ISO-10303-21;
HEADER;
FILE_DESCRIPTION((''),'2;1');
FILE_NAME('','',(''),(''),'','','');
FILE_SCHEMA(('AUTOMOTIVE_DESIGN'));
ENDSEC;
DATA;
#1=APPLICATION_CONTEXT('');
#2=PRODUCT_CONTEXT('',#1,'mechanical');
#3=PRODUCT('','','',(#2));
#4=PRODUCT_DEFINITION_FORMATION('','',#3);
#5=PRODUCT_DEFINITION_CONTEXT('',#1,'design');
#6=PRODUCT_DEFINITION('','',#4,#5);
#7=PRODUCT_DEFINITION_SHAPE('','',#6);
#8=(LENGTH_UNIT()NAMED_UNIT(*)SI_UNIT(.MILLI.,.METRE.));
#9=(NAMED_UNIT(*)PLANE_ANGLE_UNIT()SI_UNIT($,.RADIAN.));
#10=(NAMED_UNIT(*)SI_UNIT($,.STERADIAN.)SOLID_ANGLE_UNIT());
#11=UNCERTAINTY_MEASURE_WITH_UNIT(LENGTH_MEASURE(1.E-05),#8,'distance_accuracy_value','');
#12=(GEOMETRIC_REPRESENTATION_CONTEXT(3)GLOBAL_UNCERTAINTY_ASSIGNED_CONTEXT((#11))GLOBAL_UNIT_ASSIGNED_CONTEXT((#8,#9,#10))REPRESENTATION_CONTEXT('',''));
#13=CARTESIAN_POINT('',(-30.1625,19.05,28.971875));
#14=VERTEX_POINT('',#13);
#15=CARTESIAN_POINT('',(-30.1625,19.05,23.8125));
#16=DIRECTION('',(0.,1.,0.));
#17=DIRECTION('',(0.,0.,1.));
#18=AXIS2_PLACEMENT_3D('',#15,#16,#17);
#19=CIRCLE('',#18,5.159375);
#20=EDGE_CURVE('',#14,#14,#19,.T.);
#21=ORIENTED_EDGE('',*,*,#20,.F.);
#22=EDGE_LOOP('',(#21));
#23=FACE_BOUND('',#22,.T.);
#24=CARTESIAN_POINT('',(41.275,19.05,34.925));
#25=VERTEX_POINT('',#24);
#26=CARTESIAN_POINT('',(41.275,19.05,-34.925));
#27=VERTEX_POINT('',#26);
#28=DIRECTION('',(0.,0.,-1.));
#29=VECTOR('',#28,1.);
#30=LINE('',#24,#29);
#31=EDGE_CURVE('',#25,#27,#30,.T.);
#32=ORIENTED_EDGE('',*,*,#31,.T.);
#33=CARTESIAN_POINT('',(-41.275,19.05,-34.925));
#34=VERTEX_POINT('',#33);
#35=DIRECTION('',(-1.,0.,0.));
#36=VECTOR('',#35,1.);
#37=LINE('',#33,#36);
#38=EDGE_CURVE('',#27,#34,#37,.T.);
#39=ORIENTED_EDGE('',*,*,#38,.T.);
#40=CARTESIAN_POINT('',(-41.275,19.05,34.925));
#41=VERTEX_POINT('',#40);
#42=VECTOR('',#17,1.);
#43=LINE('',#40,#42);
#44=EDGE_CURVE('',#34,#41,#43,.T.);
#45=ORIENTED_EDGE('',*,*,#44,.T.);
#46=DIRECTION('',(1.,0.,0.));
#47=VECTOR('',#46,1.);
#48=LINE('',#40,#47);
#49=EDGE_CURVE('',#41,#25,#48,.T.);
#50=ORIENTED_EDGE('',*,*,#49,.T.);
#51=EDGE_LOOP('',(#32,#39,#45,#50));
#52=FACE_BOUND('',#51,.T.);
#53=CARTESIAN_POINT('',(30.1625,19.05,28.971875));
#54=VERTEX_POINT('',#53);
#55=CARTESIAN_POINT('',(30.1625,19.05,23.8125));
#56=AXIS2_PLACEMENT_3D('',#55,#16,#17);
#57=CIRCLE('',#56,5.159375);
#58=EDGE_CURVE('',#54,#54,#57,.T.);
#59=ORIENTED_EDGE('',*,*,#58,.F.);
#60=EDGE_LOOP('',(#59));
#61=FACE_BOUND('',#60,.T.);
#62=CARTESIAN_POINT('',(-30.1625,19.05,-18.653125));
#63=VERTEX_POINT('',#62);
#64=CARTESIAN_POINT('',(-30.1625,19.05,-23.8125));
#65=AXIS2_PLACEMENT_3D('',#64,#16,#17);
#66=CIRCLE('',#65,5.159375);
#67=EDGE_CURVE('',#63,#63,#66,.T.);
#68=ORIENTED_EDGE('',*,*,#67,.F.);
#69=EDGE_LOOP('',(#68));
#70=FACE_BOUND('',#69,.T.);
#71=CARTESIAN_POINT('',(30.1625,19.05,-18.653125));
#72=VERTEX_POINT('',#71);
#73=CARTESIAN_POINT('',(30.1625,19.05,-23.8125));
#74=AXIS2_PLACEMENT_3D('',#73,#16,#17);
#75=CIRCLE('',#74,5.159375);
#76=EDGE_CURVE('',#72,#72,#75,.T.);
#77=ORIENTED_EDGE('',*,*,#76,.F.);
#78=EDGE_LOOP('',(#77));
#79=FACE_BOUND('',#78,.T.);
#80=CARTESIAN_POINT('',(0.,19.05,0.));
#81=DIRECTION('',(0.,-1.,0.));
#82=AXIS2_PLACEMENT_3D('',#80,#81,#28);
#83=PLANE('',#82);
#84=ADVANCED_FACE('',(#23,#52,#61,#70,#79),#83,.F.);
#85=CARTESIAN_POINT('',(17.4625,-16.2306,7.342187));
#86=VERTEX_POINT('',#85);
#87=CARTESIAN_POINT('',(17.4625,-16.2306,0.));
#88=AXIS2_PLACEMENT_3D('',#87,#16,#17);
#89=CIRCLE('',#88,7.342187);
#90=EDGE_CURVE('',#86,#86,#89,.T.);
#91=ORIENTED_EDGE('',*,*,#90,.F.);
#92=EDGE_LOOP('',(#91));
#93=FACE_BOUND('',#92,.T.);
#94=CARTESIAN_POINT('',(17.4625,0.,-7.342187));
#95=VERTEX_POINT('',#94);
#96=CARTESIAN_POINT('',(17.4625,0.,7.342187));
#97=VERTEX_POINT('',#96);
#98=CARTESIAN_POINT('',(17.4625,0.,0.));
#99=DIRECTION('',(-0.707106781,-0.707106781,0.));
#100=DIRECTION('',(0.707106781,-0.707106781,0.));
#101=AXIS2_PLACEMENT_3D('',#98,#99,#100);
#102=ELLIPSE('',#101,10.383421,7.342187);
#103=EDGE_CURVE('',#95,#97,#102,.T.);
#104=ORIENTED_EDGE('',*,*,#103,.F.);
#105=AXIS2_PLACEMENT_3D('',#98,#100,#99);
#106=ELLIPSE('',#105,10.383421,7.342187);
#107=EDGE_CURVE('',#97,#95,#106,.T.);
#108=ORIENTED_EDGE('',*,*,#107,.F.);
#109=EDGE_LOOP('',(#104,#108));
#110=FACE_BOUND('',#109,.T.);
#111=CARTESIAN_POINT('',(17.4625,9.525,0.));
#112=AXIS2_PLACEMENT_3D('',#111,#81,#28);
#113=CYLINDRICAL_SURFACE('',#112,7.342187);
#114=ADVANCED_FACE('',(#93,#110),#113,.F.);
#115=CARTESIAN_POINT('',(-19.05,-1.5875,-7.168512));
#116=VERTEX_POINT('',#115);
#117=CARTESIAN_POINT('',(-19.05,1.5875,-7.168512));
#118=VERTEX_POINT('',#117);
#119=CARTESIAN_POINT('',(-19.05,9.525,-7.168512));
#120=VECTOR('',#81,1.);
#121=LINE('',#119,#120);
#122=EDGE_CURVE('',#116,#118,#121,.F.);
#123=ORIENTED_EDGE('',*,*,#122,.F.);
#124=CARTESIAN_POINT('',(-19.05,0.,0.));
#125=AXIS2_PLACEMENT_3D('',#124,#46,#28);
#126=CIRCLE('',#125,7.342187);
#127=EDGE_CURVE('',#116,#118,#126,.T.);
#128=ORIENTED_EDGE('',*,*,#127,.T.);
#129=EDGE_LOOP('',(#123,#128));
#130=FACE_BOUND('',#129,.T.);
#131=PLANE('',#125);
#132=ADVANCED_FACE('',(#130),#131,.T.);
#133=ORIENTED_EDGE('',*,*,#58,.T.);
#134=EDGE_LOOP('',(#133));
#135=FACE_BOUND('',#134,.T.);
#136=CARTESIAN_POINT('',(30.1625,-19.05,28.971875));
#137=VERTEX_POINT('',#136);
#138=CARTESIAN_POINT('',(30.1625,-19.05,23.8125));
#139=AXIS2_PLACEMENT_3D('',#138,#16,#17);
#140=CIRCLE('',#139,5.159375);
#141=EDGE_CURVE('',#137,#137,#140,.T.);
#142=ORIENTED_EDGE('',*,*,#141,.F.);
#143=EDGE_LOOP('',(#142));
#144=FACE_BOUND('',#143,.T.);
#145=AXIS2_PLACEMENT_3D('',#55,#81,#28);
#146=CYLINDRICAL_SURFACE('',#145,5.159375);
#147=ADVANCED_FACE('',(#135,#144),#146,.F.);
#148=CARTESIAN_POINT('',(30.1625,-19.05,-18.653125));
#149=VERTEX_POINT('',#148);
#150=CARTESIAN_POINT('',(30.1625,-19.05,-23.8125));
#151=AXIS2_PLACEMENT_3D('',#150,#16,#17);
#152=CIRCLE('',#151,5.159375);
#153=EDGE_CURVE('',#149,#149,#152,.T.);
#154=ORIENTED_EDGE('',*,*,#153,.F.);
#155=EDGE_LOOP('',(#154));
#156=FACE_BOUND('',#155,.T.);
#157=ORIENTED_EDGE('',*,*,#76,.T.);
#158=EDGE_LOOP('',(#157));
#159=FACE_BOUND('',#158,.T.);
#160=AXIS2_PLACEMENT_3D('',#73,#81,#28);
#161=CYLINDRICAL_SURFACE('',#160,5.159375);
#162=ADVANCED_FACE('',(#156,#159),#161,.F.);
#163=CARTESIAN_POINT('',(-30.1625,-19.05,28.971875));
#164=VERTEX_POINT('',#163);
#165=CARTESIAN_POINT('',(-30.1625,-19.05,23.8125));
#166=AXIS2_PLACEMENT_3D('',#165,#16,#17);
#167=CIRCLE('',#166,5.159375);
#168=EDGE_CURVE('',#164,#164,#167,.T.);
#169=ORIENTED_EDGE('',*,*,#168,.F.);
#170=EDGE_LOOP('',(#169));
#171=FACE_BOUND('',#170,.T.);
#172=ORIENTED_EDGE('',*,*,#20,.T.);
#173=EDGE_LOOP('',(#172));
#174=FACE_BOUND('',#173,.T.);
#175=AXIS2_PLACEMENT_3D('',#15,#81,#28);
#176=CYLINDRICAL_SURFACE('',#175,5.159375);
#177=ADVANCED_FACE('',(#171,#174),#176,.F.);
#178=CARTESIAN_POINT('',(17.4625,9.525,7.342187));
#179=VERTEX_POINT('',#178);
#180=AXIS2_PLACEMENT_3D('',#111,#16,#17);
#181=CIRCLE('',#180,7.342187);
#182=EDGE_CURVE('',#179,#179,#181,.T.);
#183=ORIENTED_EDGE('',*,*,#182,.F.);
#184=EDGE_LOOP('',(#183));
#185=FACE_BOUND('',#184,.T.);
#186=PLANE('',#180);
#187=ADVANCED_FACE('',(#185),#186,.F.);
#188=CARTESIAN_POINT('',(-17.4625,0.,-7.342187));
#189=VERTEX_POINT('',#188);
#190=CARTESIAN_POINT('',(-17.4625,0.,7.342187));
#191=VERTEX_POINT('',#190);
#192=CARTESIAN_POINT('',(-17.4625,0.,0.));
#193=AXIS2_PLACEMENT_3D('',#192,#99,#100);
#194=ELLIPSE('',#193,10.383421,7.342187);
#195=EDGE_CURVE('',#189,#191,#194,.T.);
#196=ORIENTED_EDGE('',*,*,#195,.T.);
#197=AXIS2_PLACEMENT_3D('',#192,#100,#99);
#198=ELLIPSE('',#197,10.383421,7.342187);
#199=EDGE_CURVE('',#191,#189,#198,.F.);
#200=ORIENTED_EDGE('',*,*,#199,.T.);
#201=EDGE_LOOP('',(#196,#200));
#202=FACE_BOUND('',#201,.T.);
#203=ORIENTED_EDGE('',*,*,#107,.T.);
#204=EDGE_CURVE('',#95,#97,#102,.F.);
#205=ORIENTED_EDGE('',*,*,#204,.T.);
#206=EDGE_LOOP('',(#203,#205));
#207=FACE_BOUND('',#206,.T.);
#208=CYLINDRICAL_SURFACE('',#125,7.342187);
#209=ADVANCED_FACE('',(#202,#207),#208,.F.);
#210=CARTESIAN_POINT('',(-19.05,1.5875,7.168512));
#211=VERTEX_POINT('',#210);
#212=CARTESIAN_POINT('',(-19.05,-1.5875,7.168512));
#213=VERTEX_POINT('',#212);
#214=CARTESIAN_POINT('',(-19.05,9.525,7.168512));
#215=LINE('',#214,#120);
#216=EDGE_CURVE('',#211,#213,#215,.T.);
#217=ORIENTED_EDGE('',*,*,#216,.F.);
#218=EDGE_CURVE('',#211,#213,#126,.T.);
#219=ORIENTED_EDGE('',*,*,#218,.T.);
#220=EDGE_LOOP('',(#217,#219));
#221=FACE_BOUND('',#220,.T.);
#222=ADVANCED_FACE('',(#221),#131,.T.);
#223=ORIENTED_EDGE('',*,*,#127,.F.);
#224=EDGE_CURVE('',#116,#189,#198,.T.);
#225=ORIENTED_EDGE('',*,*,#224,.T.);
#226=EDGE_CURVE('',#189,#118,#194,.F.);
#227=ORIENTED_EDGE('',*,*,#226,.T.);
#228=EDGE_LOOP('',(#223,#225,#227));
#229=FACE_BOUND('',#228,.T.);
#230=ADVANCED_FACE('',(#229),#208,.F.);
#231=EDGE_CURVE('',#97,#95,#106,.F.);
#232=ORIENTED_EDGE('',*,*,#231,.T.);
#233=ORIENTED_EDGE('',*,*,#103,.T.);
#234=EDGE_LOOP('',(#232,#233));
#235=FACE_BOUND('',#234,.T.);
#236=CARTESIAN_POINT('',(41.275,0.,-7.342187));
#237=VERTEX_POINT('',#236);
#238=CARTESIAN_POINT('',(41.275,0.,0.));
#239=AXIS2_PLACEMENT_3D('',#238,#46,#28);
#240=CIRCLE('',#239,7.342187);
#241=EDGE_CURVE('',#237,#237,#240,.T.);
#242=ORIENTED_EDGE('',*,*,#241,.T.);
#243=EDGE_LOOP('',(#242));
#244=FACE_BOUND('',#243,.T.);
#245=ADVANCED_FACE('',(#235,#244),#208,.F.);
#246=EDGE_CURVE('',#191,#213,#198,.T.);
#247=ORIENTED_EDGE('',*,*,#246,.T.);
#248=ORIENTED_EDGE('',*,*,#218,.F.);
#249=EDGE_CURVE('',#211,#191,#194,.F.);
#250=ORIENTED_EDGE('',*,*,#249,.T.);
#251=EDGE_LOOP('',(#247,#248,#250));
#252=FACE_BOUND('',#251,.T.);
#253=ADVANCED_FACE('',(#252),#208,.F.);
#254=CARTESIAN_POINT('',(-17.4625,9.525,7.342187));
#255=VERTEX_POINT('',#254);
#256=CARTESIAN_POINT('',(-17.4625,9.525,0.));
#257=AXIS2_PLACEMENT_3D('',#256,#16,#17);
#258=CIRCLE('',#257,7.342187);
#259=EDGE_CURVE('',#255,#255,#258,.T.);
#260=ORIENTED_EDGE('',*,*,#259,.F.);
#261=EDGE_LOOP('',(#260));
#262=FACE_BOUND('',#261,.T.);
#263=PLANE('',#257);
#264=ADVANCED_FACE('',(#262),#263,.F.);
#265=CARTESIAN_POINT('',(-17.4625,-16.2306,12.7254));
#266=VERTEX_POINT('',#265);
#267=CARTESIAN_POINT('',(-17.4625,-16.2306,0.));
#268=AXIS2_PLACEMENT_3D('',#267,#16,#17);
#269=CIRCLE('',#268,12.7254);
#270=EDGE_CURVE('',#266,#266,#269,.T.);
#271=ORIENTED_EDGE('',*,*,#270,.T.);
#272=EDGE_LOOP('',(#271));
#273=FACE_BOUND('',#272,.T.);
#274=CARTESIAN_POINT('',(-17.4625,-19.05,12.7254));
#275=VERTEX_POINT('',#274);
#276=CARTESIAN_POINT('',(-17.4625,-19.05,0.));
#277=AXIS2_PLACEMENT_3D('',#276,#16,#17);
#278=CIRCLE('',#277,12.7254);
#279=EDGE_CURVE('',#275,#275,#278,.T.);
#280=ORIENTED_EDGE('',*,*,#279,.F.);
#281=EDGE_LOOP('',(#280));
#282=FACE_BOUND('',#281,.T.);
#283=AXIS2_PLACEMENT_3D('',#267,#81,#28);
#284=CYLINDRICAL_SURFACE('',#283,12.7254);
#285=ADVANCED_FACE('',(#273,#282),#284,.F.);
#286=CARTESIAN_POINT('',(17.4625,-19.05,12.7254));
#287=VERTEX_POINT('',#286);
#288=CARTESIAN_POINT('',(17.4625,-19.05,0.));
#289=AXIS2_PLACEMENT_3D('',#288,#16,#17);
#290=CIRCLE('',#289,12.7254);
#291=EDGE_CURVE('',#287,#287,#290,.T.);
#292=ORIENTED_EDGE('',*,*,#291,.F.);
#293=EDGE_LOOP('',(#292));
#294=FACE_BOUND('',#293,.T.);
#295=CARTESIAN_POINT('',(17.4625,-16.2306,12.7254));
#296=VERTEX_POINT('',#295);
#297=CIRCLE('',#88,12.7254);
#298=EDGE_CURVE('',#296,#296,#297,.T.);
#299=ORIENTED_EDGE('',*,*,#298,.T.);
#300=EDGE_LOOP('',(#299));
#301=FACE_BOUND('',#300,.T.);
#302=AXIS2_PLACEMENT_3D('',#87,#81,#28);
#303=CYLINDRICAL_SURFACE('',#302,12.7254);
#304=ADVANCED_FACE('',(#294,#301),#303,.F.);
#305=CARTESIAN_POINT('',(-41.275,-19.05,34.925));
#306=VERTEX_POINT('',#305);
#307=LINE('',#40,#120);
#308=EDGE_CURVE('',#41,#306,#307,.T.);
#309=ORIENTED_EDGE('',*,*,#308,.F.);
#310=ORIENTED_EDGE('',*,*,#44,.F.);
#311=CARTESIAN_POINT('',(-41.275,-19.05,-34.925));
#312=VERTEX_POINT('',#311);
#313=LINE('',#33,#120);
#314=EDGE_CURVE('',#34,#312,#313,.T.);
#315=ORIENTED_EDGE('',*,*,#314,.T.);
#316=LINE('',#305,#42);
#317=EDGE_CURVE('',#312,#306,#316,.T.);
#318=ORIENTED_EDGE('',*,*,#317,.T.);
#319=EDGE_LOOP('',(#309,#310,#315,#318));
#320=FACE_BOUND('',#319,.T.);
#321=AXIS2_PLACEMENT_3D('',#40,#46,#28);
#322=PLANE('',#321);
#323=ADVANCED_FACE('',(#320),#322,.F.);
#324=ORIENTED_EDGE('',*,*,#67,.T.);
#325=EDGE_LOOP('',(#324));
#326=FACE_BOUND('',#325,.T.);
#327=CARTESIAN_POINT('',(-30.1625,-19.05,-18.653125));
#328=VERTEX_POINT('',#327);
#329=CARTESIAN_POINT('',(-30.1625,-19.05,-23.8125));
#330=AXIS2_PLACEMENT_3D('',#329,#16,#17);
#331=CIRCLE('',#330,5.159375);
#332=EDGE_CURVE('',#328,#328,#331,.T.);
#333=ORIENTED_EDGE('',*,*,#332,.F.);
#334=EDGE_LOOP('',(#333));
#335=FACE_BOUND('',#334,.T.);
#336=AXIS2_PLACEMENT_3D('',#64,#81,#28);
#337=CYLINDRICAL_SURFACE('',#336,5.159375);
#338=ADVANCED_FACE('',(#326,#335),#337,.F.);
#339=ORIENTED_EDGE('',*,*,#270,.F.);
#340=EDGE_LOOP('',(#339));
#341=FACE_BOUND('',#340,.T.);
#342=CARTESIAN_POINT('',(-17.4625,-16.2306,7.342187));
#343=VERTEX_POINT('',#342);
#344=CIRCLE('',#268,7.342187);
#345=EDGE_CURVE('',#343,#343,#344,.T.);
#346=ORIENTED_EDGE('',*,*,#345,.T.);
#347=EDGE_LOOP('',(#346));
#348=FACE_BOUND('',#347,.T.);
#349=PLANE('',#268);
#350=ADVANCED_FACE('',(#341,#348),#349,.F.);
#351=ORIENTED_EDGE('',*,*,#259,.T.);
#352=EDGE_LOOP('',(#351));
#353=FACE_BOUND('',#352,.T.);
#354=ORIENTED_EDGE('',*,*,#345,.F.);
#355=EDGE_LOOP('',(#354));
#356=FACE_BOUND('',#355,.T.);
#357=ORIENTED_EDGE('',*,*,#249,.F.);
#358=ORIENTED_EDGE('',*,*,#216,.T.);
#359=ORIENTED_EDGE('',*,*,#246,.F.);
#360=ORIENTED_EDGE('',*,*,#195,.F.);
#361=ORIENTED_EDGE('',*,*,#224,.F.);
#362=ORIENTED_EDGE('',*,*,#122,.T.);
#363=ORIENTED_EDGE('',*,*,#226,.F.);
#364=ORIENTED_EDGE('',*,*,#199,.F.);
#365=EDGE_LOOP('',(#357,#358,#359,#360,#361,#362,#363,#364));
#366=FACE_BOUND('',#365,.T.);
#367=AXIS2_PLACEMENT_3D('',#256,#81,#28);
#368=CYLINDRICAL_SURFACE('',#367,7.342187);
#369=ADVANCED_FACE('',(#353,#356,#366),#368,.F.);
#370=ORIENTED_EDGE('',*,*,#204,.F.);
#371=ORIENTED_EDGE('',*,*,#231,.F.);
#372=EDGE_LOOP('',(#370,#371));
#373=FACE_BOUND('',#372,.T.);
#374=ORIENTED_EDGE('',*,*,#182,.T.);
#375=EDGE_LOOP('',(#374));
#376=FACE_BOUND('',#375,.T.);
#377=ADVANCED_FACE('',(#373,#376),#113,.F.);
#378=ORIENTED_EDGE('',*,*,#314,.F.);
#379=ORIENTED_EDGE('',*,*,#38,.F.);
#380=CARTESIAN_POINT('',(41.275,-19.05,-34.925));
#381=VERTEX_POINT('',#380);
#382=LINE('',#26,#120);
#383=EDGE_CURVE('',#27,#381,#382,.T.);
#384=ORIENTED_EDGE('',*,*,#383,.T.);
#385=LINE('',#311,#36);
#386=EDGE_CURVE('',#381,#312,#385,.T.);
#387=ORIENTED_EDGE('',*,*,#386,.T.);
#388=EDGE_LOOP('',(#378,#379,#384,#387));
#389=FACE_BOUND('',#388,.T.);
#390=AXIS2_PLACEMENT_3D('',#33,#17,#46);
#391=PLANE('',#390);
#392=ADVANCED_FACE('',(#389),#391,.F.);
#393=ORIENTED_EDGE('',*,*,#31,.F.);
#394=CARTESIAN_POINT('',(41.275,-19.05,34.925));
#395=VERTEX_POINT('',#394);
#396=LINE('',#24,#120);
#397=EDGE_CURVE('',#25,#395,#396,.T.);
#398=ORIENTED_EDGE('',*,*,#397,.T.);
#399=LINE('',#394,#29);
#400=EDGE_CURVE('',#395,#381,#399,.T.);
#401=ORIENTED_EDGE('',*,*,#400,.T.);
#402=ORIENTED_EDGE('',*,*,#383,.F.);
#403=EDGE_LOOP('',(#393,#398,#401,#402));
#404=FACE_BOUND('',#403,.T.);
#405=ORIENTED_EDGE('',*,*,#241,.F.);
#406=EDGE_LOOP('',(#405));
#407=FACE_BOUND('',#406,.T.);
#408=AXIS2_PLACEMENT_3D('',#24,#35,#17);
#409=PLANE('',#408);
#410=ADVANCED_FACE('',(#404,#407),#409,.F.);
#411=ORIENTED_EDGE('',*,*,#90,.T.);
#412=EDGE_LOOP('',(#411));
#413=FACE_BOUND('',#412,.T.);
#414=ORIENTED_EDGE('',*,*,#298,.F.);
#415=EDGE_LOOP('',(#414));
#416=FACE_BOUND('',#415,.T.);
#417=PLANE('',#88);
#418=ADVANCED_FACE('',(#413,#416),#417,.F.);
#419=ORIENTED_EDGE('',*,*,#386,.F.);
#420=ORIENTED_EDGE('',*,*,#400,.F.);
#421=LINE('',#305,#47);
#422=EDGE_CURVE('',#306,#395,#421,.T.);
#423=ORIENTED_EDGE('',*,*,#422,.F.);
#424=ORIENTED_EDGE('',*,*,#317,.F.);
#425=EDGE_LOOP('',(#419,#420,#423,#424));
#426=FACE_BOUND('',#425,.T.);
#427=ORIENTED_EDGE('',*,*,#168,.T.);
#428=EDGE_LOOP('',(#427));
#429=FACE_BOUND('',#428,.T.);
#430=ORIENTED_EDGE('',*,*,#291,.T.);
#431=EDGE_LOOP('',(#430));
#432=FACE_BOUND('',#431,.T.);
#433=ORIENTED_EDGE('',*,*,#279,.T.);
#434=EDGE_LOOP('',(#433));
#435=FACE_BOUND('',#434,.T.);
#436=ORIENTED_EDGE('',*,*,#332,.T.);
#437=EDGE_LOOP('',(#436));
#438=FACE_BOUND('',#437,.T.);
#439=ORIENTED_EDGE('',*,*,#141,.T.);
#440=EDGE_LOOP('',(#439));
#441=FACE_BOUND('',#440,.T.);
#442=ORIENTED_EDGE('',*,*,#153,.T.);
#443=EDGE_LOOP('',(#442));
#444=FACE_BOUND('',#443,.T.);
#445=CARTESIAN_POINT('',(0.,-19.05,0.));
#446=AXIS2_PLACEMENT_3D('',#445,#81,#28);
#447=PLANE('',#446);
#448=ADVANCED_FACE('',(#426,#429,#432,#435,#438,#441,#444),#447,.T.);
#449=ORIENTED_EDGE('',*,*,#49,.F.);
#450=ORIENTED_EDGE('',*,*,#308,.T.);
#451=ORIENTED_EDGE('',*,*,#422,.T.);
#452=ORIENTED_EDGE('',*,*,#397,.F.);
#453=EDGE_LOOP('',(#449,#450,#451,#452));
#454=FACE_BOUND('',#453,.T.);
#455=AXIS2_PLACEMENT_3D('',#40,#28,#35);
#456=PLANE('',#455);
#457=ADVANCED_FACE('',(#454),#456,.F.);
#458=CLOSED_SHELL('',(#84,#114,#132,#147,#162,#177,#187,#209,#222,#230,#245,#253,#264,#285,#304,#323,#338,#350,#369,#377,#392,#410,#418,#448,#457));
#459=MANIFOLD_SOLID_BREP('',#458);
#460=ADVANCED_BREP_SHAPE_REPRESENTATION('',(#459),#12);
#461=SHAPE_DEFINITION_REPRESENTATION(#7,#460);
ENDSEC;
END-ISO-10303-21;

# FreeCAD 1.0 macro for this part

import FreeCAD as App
import Part
import Sketcher

V = App.Vector
Q = App.Units.Quantity


def add_polygon(sketch, points):
    """Adds a closed chain of lines whose ends are joined by coincident constraints."""
    first, n = sketch.GeometryCount, len(points)
    for a, b in zip(points, points[1:] + points[:1]):
        sketch.addGeometry(Part.LineSegment(App.Vector(*a, 0), App.Vector(*b, 0)), False)
    for i in range(n):
        sketch.addConstraint(Sketcher.Constraint("Coincident", first + i, 2, first + (i + 1) % n, 1))

doc = App.newDocument("Part")
body = doc.addObject("PartDesign::Body", "Body")

sketch1 = body.newObject("Sketcher::SketchObject", "Sketch")
sketch1.AttachmentSupport = (doc.getObject("XZ_Plane"), [""])
sketch1.MapMode = "FlatFace"
add_polygon(sketch1, [(-41, -35), (-41, 35), (41, 35), (41, -35)])
sketch1.addConstraint(Sketcher.Constraint("Vertical", 0))
sketch1.addConstraint(Sketcher.Constraint("Horizontal", 1))
sketch1.addConstraint(Sketcher.Constraint("Vertical", 2))
sketch1.addConstraint(Sketcher.Constraint("Horizontal", 3))
sketch1.addConstraint(Sketcher.Constraint("Symmetric", 0, 2, 2, 2, -1, 1))
sketch1.addConstraint(Sketcher.Constraint("DistanceX", 1, 1, 1, 2, Q("3.25 in")))
sketch1.addConstraint(Sketcher.Constraint("DistanceY", 0, 1, 0, 2, Q("2.75 in")))
pad1 = body.newObject("PartDesign::Pad", "Pad")
pad1.Profile = sketch1
pad1.Length = Q("1.5 in")
pad1.Midplane = True

sketch2 = body.newObject("Sketcher::SketchObject", "Sketch001")
sketch2.AttachmentSupport = (doc.getObject("XZ_Plane"), [""])
sketch2.MapMode = "FlatFace"
sketch2.AttachmentOffset = App.Placement(V(0, 0, 0.75 * 25.4), App.Rotation())
sketch2.addGeometry(Part.Circle(V(-30, 24, 0), V(0, 0, 1), 5), False)
sketch2.addGeometry(Part.Circle(V(30, 24, 0), V(0, 0, 1), 5), False)
sketch2.addGeometry(Part.Circle(V(-30, -24, 0), V(0, 0, 1), 5), False)
sketch2.addGeometry(Part.Circle(V(30, -24, 0), V(0, 0, 1), 5), False)
sketch2.addConstraint(Sketcher.Constraint("Equal", 0, 1))
sketch2.addConstraint(Sketcher.Constraint("Equal", 1, 2))
sketch2.addConstraint(Sketcher.Constraint("Equal", 2, 3))
sketch2.addConstraint(Sketcher.Constraint("Symmetric", 1, 3, 2, 3, -1, 1))
sketch2.addConstraint(Sketcher.Constraint("Symmetric", 0, 3, 3, 3, -1, 1))
sketch2.addConstraint(Sketcher.Constraint("Symmetric", 0, 3, 1, 3, -2))
sketch2.addConstraint(Sketcher.Constraint("Diameter", 0, Q("0.40625 in")))
sketch2.addConstraint(Sketcher.Constraint("DistanceX", 0, 3, -1, 1, Q("1.1875 in")))
sketch2.addConstraint(Sketcher.Constraint("DistanceY", -1, 1, 0, 3, Q("0.9375 in")))
pocket1 = body.newObject("PartDesign::Pocket", "Pocket")
pocket1.Profile = sketch2
pocket1.Type = "ThroughAll"

sketch3 = body.newObject("Sketcher::SketchObject", "Sketch002")
sketch3.AttachmentSupport = (doc.getObject("XZ_Plane"), [""])
sketch3.MapMode = "FlatFace"
sketch3.AttachmentOffset = App.Placement(V(0, 0, 0.75 * 25.4), App.Rotation())
sketch3.addGeometry(Part.Circle(V(-17, 0, 0), V(0, 0, 1), 7), False)
sketch3.addGeometry(Part.Circle(V(17, 0, 0), V(0, 0, 1), 7), False)
sketch3.addConstraint(Sketcher.Constraint("Equal", 0, 1))
sketch3.addConstraint(Sketcher.Constraint("Symmetric", 0, 3, 1, 3, -1, 1))
sketch3.addConstraint(Sketcher.Constraint("PointOnObject", 0, 3, -1))
sketch3.addConstraint(Sketcher.Constraint("Diameter", 0, Q("0.578125 in")))
sketch3.addConstraint(Sketcher.Constraint("DistanceX", 0, 3, -1, 1, Q("0.6875 in")))
pocket2 = body.newObject("PartDesign::Pocket", "Pocket001")
pocket2.Profile = sketch3
pocket2.Length = Q("1.125 in")

sketch4 = body.newObject("Sketcher::SketchObject", "Sketch003")
sketch4.AttachmentSupport = (doc.getObject("XZ_Plane"), [""])
sketch4.MapMode = "FlatFace"
sketch4.AttachmentOffset = App.Placement(V(0, 0, 0.75 * 25.4), App.Rotation())
sketch4.addGeometry(Part.Circle(V(-17, 0, 0), V(0, 0, 1), 13), False)
sketch4.addGeometry(Part.Circle(V(17, 0, 0), V(0, 0, 1), 13), False)
sketch4.addConstraint(Sketcher.Constraint("Equal", 0, 1))
sketch4.addConstraint(Sketcher.Constraint("Symmetric", 0, 3, 1, 3, -1, 1))
sketch4.addConstraint(Sketcher.Constraint("PointOnObject", 0, 3, -1))
sketch4.addConstraint(Sketcher.Constraint("Diameter", 0, Q("1.002 in")))
sketch4.addConstraint(Sketcher.Constraint("DistanceX", 0, 3, -1, 1, Q("0.6875 in")))
pocket3 = body.newObject("PartDesign::Pocket", "Pocket002")
pocket3.Profile = sketch4
pocket3.Length = Q("0.111 in")

sketch5 = body.newObject("Sketcher::SketchObject", "Sketch004")
sketch5.AttachmentSupport = (doc.getObject("YZ_Plane"), [""])
sketch5.MapMode = "FlatFace"
sketch5.AttachmentOffset = App.Placement(V(0, 0, 1.625 * 25.4), App.Rotation())
sketch5.addGeometry(Part.Circle(V(0, 0, 0), V(0, 0, 1), 7), False)
sketch5.addConstraint(Sketcher.Constraint("Coincident", 0, 3, -1, 1))
sketch5.addConstraint(Sketcher.Constraint("Diameter", 0, Q("0.578125 in")))
pocket4 = body.newObject("PartDesign::Pocket", "Pocket003")
pocket4.Profile = sketch5
pocket4.Length = Q("2.375 in")

doc.recompute()
